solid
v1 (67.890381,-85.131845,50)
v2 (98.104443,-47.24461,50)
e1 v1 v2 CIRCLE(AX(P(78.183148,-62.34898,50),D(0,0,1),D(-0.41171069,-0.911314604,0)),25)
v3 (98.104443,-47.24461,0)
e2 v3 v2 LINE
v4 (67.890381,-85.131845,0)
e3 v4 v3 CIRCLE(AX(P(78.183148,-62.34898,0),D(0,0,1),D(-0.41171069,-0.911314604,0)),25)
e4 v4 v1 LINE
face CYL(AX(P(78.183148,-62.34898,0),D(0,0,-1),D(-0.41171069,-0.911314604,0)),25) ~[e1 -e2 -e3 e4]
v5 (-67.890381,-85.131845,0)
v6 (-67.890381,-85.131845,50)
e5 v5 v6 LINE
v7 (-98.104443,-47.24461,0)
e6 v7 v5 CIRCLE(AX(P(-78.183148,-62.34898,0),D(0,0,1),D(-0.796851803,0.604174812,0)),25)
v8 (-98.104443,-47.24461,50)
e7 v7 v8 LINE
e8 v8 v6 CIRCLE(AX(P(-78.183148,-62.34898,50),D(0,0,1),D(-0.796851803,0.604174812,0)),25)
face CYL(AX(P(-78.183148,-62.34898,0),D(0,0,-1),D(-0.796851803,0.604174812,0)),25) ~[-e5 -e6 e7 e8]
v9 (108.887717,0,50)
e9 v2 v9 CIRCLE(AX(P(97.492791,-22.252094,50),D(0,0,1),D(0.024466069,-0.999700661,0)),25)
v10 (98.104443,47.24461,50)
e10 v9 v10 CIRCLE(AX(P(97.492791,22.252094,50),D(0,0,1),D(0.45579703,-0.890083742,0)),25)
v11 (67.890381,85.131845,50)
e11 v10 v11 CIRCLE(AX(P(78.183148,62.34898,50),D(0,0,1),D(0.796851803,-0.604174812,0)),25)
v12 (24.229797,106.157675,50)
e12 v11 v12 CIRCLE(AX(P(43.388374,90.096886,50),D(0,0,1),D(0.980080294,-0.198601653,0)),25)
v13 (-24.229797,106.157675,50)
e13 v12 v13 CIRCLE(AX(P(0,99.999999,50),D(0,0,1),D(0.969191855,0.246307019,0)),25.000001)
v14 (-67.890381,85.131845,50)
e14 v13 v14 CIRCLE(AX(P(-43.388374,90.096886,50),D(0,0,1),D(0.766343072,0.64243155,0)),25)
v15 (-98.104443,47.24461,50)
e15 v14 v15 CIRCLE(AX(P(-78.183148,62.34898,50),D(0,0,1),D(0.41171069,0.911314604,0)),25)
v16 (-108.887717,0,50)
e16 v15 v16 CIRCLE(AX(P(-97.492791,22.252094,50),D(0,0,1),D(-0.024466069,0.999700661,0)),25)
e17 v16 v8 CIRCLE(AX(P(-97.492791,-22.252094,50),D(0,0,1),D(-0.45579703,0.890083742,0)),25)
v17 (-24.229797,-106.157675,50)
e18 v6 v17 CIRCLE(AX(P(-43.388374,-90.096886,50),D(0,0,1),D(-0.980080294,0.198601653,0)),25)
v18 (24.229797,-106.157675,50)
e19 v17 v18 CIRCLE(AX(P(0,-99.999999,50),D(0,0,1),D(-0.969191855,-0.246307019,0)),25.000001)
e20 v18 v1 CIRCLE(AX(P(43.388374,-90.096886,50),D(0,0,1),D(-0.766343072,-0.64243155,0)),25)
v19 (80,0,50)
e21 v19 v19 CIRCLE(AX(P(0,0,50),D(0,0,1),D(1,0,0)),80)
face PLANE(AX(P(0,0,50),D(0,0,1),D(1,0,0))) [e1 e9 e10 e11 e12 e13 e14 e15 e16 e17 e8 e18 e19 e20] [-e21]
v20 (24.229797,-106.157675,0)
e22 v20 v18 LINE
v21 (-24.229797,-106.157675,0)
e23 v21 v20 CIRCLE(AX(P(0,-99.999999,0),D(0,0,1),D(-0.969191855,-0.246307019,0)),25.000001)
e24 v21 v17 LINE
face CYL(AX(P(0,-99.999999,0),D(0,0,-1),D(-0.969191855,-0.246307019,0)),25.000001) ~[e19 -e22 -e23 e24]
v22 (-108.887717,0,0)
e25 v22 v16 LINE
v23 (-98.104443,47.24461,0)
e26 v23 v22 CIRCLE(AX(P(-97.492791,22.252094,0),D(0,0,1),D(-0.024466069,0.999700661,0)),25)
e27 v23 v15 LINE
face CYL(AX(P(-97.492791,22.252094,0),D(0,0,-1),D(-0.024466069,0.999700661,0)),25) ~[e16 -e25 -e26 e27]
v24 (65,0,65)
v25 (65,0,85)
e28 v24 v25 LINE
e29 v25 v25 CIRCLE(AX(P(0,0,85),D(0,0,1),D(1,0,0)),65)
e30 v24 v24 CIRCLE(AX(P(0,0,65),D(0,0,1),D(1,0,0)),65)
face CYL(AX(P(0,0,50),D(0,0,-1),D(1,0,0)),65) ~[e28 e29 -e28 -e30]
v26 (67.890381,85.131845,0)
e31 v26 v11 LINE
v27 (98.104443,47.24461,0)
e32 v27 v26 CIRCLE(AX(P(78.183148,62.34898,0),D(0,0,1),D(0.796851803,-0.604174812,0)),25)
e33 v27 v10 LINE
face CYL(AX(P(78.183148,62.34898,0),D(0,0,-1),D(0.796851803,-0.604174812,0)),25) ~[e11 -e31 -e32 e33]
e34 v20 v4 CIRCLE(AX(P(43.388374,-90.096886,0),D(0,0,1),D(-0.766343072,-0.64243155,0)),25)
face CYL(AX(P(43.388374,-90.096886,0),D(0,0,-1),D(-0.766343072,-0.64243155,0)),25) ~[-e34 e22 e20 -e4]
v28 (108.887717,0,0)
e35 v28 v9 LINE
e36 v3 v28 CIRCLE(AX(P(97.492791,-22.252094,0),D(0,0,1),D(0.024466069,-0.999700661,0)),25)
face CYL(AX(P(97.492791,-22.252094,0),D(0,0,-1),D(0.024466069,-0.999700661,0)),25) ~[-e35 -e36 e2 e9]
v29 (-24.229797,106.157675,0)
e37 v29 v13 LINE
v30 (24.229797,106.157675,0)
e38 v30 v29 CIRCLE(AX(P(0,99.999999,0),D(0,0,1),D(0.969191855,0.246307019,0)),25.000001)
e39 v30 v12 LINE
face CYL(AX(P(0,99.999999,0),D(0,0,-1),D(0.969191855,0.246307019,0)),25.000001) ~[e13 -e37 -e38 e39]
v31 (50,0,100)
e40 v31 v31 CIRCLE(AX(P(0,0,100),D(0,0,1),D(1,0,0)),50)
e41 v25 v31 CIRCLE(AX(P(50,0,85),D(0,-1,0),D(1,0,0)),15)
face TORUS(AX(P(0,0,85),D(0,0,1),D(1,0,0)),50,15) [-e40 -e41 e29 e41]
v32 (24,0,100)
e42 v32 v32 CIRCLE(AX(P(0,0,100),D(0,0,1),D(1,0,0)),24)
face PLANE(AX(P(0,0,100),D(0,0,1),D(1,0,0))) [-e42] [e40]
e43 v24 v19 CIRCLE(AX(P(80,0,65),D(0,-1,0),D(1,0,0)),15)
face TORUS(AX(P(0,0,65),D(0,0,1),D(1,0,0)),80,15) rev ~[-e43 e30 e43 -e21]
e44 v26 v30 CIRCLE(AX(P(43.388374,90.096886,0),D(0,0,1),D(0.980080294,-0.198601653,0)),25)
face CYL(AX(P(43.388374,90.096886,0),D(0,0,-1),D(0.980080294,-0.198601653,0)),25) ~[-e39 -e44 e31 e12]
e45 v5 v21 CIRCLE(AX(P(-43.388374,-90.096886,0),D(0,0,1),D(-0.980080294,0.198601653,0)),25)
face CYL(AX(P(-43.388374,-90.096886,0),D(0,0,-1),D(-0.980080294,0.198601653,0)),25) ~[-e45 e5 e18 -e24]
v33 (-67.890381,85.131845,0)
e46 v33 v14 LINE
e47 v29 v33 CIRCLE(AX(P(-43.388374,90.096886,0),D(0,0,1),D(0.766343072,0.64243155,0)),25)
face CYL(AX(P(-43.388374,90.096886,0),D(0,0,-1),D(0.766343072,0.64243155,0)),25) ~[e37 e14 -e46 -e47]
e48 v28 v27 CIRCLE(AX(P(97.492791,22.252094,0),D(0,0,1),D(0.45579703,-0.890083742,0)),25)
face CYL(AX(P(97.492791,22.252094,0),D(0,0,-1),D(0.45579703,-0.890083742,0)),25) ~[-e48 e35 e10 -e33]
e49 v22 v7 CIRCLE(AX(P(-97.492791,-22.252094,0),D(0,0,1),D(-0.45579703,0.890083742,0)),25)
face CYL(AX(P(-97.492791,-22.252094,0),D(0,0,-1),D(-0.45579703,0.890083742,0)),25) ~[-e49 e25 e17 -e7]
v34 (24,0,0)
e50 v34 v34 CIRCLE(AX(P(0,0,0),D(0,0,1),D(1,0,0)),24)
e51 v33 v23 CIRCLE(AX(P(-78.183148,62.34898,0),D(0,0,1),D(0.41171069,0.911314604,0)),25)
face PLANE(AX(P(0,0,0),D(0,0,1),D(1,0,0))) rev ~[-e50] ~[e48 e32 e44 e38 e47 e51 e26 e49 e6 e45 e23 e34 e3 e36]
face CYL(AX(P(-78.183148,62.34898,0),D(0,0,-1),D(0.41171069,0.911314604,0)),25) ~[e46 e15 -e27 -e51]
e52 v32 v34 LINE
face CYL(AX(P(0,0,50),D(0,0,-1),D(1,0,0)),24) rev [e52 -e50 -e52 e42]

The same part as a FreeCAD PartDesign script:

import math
import FreeCAD as App
import Part
import Sketcher

V = App.Vector
Q = App.Units.Quantity


def edges_at(feature, points):
    """Names of the edges that pass closest to the given points."""
    edges = feature.Shape.Edges
    near = lambda p: min(range(len(edges)), key=lambda i: edges[i].distToShape(Part.Vertex(*p))[0])
    return sorted({f"Edge{near(p) + 1}" for p in points})

doc = App.newDocument("Part")
params = doc.addObject("Spreadsheet::Sheet", "Params")
for row, (alias, value) in enumerate([
    ("sketch1_diameter", "48 mm"),
    ("sketch1_radius", "25 mm"),
    ("pad1_length", "50 mm"),
    ("sketch2_diameter", "130 mm"),
    ("sketch2_diameter2", "48 mm"),
    ("pad2_length", "50 mm"),
    ("fillet_radius", "15 mm"),
], start=1):
    params.set(f"A{row}", alias)
    params.set(f"B{row}", "=" + value)
    params.setAlias(f"B{row}", alias)

body = doc.addObject("PartDesign::Body", "Body")

# Sketch on XY plane
sketch1 = body.newObject("Sketcher::SketchObject", "Sketch")
sketch1.AttachmentSupport = (doc.getObject("XY_Plane"), [""])
sketch1.MapMode = "FlatFace"
sketch1.addGeometry([
    Part.ArcOfCircle(Part.Circle(V(43.388374, 90.096886, 0), V(0, 0, 1), 25), math.radians(-11.455199), math.radians(140.026626)),  # 0
    Part.ArcOfCircle(Part.Circle(V(0, 99.999999, 0), V(0, 0, 1), 25.000001), math.radians(14.259088), math.radians(165.740912)),  # 1
    Part.ArcOfCircle(Part.Circle(V(-43.388374, 90.096886, 0), V(0, 0, 1), 25), math.radians(39.973374), math.radians(191.455199)),  # 2
    Part.ArcOfCircle(Part.Circle(V(-78.183148, 62.34898, 0), V(0, 0, 1), 25), math.radians(65.687657), math.radians(217.169485)),  # 3
    Part.ArcOfCircle(Part.Circle(V(-97.492791, 22.252094, 0), V(0, 0, 1), 25), math.radians(91.401942), math.radians(242.883772)),  # 4
    Part.ArcOfCircle(Part.Circle(V(-97.492791, -22.252094, 0), V(0, 0, 1), 25), math.radians(117.116228), math.radians(268.598058)),  # 5
    Part.ArcOfCircle(Part.Circle(V(-78.183148, -62.34898, 0), V(0, 0, 1), 25), math.radians(142.830515), math.radians(294.312343)),  # 6
    Part.ArcOfCircle(Part.Circle(V(-43.388374, -90.096886, 0), V(0, 0, 1), 25), math.radians(168.544801), math.radians(320.026626)),  # 7
    Part.ArcOfCircle(Part.Circle(V(0, -99.999999, 0), V(0, 0, 1), 25.000001), math.radians(-165.740912), math.radians(-14.259088)),  # 8
    Part.ArcOfCircle(Part.Circle(V(43.388374, -90.096886, 0), V(0, 0, 1), 25), math.radians(-140.026626), math.radians(11.455199)),  # 9
    Part.ArcOfCircle(Part.Circle(V(78.183148, -62.34898, 0), V(0, 0, 1), 25), math.radians(-114.312343), math.radians(37.169485)),  # 10
    Part.ArcOfCircle(Part.Circle(V(97.492791, -22.252094, 0), V(0, 0, 1), 25), math.radians(-88.598058), math.radians(62.883772)),  # 11
    Part.ArcOfCircle(Part.Circle(V(97.492791, 22.252094, 0), V(0, 0, 1), 25), math.radians(-62.883772), math.radians(88.598058)),  # 12
    Part.ArcOfCircle(Part.Circle(V(78.183148, 62.34898, 0), V(0, 0, 1), 25), math.radians(-37.169485), math.radians(114.312343)),  # 13
    Part.Circle(V(0, 0, 0), V(0, 0, 1), 24),  # 14
], False)
sketch1.addConstraint([
    Sketcher.Constraint("Coincident", 0, 2, 1, 1),
    Sketcher.Constraint("Coincident", 1, 2, 2, 1),
    Sketcher.Constraint("Coincident", 2, 2, 3, 1),
    Sketcher.Constraint("Coincident", 3, 2, 4, 1),
    Sketcher.Constraint("Coincident", 4, 2, 5, 1),
    Sketcher.Constraint("Coincident", 5, 2, 6, 1),
    Sketcher.Constraint("Coincident", 6, 2, 7, 1),
    Sketcher.Constraint("Coincident", 7, 2, 8, 1),
    Sketcher.Constraint("Coincident", 8, 2, 9, 1),
    Sketcher.Constraint("Coincident", 9, 2, 10, 1),
    Sketcher.Constraint("Coincident", 10, 2, 11, 1),
    Sketcher.Constraint("Coincident", 11, 2, 12, 1),
    Sketcher.Constraint("Coincident", 12, 2, 13, 1),
    Sketcher.Constraint("Coincident", 13, 2, 0, 1),
    Sketcher.Constraint("Coincident", 14, 3, -1, 1),
    Sketcher.Constraint("Equal", 0, 1),
    Sketcher.Constraint("Equal", 1, 2),
    Sketcher.Constraint("Equal", 2, 3),
    Sketcher.Constraint("Equal", 3, 4),
    Sketcher.Constraint("Equal", 4, 5),
    Sketcher.Constraint("Equal", 5, 6),
    Sketcher.Constraint("Equal", 6, 7),
    Sketcher.Constraint("Equal", 7, 8),
    Sketcher.Constraint("Equal", 8, 9),
    Sketcher.Constraint("Equal", 9, 10),
    Sketcher.Constraint("Equal", 10, 11),
    Sketcher.Constraint("Equal", 11, 12),
    Sketcher.Constraint("Equal", 12, 13),
    Sketcher.Constraint("Symmetric", 0, 3, 7, 3, -1, 1),
    Sketcher.Constraint("Symmetric", 1, 3, 8, 3, -1, 1),
    Sketcher.Constraint("Symmetric", 2, 3, 9, 3, -1, 1),
    Sketcher.Constraint("Symmetric", 3, 3, 10, 3, -1, 1),
    Sketcher.Constraint("Symmetric", 4, 3, 11, 3, -1, 1),
    Sketcher.Constraint("Symmetric", 5, 3, 12, 3, -1, 1),
    Sketcher.Constraint("Symmetric", 6, 3, 13, 3, -1, 1),
    Sketcher.Constraint("Symmetric", 0, 3, 2, 3, -2),
    Sketcher.Constraint("Symmetric", 6, 3, 10, 3, -2),
    Sketcher.Constraint("Symmetric", 5, 3, 11, 3, -2),
    Sketcher.Constraint("PointOnObject", 1, 3, -2),
    Sketcher.Constraint("Diameter", 14, Q("48 mm")),
    Sketcher.Constraint("Radius", 0, Q("25 mm")),
    Sketcher.Constraint("DistanceY", -1, 1, 1, 3, Q("99.999999 mm")),
    Sketcher.Constraint("DistanceX", 3, 3, -1, 1, Q("78.183148 mm")),
    Sketcher.Constraint("DistanceY", -1, 1, 3, 3, Q("62.34898 mm")),
    Sketcher.Constraint("DistanceX", 4, 3, -1, 1, Q("97.492791 mm")),
    Sketcher.Constraint("DistanceX", 2, 2, -1, 1, Q("67.890381 mm")),
    Sketcher.Constraint("DistanceY", -1, 1, 3, 2, Q("47.24461 mm")),
    Sketcher.Constraint("DistanceX", 3, 3, 0, 3, Q("121.571522 mm")),
])
sketch1.setExpression("Constraints[39]", "Params.sketch1_diameter")
sketch1.setExpression("Constraints[40]", "Params.sketch1_radius")
pad1 = body.newObject("PartDesign::Pad", "Pad")
pad1.Profile = sketch1
pad1.setExpression("Length", "Params.pad1_length")

# Sketch on XY plane
sketch2 = body.newObject("Sketcher::SketchObject", "Sketch001")
sketch2.AttachmentSupport = (doc.getObject("XY_Plane"), [""])
sketch2.MapMode = "FlatFace"
sketch2.AttachmentOffset = App.Placement(V(0, 0, 50), App.Rotation())
sketch2.addGeometry([
    Part.Circle(V(0, 0, 0), V(0, 0, 1), 65),
    Part.Circle(V(0, 0, 0), V(0, 0, 1), 24),
], False)
sketch2.addConstraint([
    Sketcher.Constraint("Coincident", 0, 3, -1, 1),
    Sketcher.Constraint("Coincident", 1, 3, -1, 1),
    Sketcher.Constraint("Diameter", 0, Q("130 mm")),
    Sketcher.Constraint("Diameter", 1, Q("48 mm")),
])
sketch2.setExpression("Constraints[2]", "Params.sketch2_diameter")
sketch2.setExpression("Constraints[3]", "Params.sketch2_diameter2")
pad2 = body.newObject("PartDesign::Pad", "Pad001")
pad2.Profile = sketch2
pad2.setExpression("Length", "Params.pad2_length")
doc.recompute()

fillet = body.newObject("PartDesign::Fillet", "Fillet")
fillet.Base = (pad2, edges_at(pad2, [(-65, 0, 50), (-65, 0, 100)]))
fillet.setExpression("Radius", "Params.fillet_radius")

doc.recompute()
